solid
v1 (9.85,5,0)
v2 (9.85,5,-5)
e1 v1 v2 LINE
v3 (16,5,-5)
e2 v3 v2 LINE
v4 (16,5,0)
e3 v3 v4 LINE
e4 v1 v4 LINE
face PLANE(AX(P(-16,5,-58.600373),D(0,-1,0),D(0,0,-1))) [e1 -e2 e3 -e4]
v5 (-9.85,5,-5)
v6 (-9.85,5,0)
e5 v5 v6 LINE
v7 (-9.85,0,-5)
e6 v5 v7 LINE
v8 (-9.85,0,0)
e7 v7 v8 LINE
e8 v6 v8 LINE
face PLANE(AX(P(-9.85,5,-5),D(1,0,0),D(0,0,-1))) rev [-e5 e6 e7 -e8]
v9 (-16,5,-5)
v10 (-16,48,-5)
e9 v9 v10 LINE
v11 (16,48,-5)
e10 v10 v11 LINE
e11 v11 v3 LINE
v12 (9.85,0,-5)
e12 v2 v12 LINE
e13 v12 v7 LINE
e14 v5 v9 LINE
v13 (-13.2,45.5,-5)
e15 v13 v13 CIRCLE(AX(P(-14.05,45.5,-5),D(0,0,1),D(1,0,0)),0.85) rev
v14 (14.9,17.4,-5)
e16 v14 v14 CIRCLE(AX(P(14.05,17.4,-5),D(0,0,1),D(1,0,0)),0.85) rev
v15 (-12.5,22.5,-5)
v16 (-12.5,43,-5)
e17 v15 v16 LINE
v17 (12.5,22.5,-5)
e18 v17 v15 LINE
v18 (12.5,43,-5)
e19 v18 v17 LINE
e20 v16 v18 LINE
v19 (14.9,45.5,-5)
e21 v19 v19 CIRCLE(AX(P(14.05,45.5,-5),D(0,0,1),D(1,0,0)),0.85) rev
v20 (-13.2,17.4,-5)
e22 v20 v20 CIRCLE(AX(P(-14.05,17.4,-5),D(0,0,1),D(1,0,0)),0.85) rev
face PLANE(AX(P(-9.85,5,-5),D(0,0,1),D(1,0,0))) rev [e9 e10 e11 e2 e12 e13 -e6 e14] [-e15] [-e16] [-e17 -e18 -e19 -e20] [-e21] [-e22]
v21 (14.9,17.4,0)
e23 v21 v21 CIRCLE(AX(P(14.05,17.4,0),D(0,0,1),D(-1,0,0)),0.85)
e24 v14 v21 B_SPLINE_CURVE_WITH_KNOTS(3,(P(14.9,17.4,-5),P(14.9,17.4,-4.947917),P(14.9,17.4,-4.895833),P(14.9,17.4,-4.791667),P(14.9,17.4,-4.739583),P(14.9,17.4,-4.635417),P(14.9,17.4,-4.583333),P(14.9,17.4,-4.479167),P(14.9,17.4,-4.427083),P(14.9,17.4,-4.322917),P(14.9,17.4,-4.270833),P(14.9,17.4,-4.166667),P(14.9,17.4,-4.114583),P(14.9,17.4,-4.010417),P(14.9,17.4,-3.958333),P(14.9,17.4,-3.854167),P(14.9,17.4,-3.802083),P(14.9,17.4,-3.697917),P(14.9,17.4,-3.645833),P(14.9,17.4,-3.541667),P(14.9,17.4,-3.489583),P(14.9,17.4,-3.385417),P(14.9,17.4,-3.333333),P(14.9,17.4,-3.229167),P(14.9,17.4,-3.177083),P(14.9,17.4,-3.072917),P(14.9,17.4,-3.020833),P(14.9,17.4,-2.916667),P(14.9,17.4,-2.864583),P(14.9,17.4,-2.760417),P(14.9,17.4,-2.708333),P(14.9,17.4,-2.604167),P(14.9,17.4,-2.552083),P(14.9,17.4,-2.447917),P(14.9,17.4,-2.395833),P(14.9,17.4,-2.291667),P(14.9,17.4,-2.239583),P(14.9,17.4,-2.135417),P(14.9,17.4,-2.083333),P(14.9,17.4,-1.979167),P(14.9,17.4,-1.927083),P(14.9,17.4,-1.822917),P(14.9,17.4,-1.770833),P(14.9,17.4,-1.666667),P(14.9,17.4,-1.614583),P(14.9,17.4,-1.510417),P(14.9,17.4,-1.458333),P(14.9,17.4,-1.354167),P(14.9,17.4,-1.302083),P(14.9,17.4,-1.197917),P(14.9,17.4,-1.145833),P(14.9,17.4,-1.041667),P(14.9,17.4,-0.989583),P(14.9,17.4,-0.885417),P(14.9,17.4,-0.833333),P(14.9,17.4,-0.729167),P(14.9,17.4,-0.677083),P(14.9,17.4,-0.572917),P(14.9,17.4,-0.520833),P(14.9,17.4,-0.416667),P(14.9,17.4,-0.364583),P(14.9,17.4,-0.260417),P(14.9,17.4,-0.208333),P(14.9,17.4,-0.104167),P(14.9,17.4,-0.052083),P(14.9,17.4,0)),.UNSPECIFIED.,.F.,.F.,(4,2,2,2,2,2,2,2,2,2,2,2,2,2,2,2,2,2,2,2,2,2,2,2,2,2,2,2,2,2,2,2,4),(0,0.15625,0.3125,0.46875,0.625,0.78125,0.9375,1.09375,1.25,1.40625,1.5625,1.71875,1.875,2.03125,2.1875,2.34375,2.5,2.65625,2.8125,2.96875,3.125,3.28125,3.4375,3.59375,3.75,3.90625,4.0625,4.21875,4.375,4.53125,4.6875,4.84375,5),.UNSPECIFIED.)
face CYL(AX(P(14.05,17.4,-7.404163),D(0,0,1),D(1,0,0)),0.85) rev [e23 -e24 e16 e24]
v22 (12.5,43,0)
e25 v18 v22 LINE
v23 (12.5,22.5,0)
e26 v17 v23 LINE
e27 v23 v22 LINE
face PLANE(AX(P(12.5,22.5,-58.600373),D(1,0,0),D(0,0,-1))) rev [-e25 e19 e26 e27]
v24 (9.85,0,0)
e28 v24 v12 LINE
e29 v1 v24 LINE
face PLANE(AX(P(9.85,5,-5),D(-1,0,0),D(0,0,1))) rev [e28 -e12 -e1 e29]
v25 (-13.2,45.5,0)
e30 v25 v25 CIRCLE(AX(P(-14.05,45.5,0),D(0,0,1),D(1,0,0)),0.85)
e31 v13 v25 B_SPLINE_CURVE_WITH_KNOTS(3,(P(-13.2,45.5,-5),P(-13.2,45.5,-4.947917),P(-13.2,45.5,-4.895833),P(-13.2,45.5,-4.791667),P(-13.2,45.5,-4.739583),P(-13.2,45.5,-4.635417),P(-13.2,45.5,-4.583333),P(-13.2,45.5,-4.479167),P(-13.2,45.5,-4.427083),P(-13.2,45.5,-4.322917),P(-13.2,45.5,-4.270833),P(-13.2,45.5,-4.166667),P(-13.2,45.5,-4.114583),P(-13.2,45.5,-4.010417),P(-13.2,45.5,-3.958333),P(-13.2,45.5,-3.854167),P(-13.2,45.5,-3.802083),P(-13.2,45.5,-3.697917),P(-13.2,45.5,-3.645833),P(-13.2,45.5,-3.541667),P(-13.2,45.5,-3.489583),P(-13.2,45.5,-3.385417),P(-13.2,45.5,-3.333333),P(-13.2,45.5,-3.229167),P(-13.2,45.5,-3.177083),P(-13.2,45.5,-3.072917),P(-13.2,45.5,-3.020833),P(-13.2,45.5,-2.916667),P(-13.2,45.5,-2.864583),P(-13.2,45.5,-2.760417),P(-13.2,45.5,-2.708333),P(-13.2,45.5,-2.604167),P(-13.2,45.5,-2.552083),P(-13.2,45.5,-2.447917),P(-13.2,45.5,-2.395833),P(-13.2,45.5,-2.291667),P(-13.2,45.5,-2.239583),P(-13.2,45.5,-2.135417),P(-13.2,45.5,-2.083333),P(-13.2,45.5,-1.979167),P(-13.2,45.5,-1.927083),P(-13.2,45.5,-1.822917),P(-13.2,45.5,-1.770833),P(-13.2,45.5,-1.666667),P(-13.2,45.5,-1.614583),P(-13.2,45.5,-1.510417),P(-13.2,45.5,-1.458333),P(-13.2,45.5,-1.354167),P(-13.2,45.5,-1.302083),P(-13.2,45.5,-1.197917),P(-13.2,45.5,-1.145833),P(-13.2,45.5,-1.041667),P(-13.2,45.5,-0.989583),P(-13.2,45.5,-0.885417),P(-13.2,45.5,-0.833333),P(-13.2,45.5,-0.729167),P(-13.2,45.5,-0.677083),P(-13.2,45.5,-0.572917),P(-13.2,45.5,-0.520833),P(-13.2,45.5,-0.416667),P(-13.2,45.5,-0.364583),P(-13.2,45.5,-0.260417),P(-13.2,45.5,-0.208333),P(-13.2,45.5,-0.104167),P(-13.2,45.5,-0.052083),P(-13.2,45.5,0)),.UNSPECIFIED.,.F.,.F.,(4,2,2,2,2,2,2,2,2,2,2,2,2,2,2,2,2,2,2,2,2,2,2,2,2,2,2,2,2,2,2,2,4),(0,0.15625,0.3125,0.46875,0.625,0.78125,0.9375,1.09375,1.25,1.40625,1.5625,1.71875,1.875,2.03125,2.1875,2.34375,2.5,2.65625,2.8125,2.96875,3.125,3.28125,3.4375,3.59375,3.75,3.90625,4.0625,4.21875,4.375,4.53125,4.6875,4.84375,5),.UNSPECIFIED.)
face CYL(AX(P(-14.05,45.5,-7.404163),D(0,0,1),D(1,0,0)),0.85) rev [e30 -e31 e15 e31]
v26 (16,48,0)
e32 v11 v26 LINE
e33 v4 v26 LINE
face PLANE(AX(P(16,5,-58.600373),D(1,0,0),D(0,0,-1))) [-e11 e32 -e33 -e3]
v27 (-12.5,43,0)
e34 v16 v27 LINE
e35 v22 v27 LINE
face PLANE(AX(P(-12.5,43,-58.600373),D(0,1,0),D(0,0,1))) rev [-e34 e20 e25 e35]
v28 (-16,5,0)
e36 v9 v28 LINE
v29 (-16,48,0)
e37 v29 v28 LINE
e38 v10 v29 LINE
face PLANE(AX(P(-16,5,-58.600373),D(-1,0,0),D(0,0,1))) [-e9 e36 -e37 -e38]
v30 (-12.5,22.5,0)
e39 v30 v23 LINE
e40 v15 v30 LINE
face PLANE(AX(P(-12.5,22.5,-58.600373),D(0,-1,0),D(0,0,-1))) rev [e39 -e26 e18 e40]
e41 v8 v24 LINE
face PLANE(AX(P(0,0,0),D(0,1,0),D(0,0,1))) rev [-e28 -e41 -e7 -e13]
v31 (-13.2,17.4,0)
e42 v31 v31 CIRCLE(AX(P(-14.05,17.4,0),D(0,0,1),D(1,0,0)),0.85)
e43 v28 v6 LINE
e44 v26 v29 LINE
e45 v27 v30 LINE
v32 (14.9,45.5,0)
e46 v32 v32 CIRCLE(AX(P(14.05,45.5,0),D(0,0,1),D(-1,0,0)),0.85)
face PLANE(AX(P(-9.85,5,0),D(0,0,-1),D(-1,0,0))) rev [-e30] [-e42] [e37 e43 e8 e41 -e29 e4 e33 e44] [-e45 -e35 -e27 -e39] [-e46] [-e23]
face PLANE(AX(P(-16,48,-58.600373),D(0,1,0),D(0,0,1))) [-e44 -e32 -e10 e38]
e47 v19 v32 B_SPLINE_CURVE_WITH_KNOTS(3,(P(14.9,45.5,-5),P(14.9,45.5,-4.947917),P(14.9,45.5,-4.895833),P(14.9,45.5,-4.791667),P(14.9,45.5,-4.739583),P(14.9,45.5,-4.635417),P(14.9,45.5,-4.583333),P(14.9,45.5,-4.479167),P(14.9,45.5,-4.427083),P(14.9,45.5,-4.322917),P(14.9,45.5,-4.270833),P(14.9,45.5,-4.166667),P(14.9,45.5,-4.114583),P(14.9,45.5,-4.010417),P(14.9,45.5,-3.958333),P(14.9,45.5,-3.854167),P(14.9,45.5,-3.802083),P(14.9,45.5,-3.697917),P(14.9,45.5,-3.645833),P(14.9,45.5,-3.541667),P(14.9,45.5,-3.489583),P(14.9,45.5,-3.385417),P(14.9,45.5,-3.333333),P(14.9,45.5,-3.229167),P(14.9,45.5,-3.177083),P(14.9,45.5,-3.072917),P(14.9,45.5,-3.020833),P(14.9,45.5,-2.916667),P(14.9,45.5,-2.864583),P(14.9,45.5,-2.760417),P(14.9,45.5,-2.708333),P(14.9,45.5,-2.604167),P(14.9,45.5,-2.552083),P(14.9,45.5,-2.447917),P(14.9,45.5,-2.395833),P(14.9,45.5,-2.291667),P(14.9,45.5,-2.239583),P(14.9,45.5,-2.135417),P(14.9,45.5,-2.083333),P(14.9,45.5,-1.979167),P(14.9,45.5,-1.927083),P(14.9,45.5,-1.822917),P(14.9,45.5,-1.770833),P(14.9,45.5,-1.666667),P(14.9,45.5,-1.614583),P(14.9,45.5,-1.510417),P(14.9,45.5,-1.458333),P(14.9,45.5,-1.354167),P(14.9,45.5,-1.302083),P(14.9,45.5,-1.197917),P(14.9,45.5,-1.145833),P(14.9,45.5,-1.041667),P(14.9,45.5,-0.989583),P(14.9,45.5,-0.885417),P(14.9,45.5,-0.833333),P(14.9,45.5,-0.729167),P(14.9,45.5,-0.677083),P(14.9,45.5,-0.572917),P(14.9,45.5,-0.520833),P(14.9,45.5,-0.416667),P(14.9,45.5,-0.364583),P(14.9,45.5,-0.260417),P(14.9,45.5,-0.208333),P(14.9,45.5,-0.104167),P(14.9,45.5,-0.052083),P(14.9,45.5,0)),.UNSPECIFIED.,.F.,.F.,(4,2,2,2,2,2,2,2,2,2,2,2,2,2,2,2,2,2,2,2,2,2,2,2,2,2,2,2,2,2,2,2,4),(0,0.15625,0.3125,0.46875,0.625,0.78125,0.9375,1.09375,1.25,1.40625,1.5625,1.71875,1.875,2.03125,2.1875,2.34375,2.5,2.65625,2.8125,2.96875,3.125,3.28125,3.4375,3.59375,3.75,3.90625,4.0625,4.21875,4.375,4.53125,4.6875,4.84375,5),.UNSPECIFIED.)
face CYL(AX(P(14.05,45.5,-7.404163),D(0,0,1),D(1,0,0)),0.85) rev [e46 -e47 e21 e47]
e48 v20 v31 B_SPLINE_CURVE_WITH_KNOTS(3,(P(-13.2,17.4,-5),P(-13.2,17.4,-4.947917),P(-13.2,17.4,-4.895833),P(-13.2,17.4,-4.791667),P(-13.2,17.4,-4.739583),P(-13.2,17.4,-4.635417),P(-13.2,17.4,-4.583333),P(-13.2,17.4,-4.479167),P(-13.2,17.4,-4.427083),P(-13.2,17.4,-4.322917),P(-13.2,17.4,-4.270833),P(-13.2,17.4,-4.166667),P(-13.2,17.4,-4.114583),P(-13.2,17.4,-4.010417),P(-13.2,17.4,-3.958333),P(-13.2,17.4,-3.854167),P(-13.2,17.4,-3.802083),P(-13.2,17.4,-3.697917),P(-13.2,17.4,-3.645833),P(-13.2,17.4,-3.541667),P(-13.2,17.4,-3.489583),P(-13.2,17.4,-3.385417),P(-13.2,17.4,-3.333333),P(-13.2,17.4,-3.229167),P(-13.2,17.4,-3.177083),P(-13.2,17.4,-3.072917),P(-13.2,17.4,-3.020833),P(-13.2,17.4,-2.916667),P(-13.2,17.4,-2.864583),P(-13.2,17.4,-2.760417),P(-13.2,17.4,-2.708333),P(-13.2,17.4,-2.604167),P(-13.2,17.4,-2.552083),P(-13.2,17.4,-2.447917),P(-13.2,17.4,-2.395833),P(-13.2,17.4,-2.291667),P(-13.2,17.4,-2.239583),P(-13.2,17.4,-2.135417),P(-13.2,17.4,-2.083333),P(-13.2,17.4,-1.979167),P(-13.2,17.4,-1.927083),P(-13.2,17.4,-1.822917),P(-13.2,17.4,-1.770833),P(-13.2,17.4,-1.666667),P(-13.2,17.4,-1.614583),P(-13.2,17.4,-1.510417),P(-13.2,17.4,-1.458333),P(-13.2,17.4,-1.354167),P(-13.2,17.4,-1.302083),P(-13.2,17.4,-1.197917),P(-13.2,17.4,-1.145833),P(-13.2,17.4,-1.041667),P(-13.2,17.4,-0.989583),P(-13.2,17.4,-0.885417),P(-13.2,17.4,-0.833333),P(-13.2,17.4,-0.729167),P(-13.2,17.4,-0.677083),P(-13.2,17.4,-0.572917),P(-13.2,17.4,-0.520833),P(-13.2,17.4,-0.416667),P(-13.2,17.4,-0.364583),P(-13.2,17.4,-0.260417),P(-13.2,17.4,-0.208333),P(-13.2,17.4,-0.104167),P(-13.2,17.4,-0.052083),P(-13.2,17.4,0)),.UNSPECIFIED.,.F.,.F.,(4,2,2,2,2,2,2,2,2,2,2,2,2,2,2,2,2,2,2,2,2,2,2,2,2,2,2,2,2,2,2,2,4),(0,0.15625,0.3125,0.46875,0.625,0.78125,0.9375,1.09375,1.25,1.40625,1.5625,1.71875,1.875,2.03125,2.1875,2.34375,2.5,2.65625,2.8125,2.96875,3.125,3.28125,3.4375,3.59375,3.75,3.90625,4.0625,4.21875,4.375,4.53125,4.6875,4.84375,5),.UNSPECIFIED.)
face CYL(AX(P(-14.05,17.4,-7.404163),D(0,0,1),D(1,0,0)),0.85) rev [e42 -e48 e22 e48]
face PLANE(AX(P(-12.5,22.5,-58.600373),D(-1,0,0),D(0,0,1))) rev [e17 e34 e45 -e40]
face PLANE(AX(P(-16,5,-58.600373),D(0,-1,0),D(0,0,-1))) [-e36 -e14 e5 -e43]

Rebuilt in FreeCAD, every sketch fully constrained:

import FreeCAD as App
import Part
import Sketcher

V = App.Vector
Q = App.Units.Quantity


def add_polygon(sketch, points):
    """Adds a closed chain of lines whose ends are joined by coincident constraints."""
    first, n = sketch.GeometryCount, len(points)
    for a, b in zip(points, points[1:] + points[:1]):
        sketch.addGeometry(Part.LineSegment(App.Vector(*a, 0), App.Vector(*b, 0)), False)
    for i in range(n):
        sketch.addConstraint(Sketcher.Constraint("Coincident", first + i, 2, first + (i + 1) % n, 1))

doc = App.newDocument("Part")
body = doc.addObject("PartDesign::Body", "Body")

# Sketch on XZ plane
sketch1 = body.newObject("Sketcher::SketchObject", "Sketch")
sketch1.AttachmentSupport = (doc.getObject("XZ_Plane"), [""])
sketch1.MapMode = "FlatFace"
add_polygon(sketch1, [(-10, -5), (-10, 0), (10, 0), (10, -5)])  # lines 0-3
sketch1.addConstraint([
    Sketcher.Constraint("Vertical", 0),
    Sketcher.Constraint("Horizontal", 1),
    Sketcher.Constraint("Vertical", 2),
    Sketcher.Constraint("Horizontal", 3),
    Sketcher.Constraint("Symmetric", 0, 2, 1, 2, -1, 1),
    Sketcher.Constraint("DistanceY", 0, 1, 0, 2, Q("5 mm")),
    Sketcher.Constraint("DistanceX", 1, 1, 1, 2, Q("19.7 mm")),
])
pad1 = body.newObject("PartDesign::Pad", "Pad")
pad1.Profile = sketch1
pad1.Length = 5
pad1.Reversed = True

# Sketch on XY plane
sketch2 = body.newObject("Sketcher::SketchObject", "Sketch001")
sketch2.AttachmentSupport = (doc.getObject("XY_Plane"), [""])
sketch2.MapMode = "FlatFace"
add_polygon(sketch2, [(-16, 5), (16, 5), (16, 48), (-16, 48)])  # lines 0-3
add_polygon(sketch2, [(12, 22), (-12, 22), (-12, 43), (12, 43)])  # lines 4-7
sketch2.addConstraint([
    Sketcher.Constraint("Horizontal", 0),
    Sketcher.Constraint("Vertical", 1),
    Sketcher.Constraint("Horizontal", 2),
    Sketcher.Constraint("Vertical", 3),
    Sketcher.Constraint("Horizontal", 4),
    Sketcher.Constraint("Vertical", 5),
    Sketcher.Constraint("Horizontal", 6),
    Sketcher.Constraint("Vertical", 7),
    Sketcher.Constraint("DistanceX", 0, 1, 0, 2, Q("32 mm")),
    Sketcher.Constraint("DistanceX", 4, 2, 4, 1, Q("25 mm")),
    Sketcher.Constraint("DistanceY", 1, 1, 1, 2, Q("43 mm")),
    Sketcher.Constraint("DistanceY", 5, 1, 5, 2, Q("20.5 mm")),
    Sketcher.Constraint("DistanceX", -1, 1, 0, 2, Q("16 mm")),
    Sketcher.Constraint("DistanceY", -1, 1, 0, 2, Q("5 mm")),
    Sketcher.Constraint("DistanceY", -1, 1, 5, 2, Q("43 mm")),
    Sketcher.Constraint("DistanceX", 4, 2, -1, 1, Q("12.5 mm")),
])
pad2 = body.newObject("PartDesign::Pad", "Pad001")
pad2.Profile = sketch2
pad2.Length = 5
pad2.Reversed = True

# Sketch on XY plane
sketch3 = body.newObject("Sketcher::SketchObject", "Sketch002")
sketch3.AttachmentSupport = (doc.getObject("XY_Plane"), [""])
sketch3.MapMode = "FlatFace"
sketch3.addGeometry([
    Part.Circle(V(-14.1, 45.5, 0), V(0, 0, 1), 0.8),
    Part.Circle(V(-14.1, 17.4, 0), V(0, 0, 1), 0.8),
    Part.Circle(V(14.1, 17.4, 0), V(0, 0, 1), 0.8),
    Part.Circle(V(14.1, 45.5, 0), V(0, 0, 1), 0.8),
], False)
sketch3.addConstraint([
    Sketcher.Constraint("Equal", 0, 1),
    Sketcher.Constraint("Equal", 1, 2),
    Sketcher.Constraint("Equal", 2, 3),
    Sketcher.Constraint("Symmetric", 1, 3, 2, 3, -2),
    Sketcher.Constraint("Symmetric", 0, 3, 3, 3, -2),
    Sketcher.Constraint("Vertical", 0, 3, 1, 3),
    Sketcher.Constraint("Diameter", 0, Q("1.7 mm")),
    Sketcher.Constraint("DistanceY", -1, 1, 0, 3, Q("45.5 mm")),
    Sketcher.Constraint("DistanceY", -1, 1, 1, 3, Q("17.4 mm")),
    Sketcher.Constraint("DistanceX", 1, 3, 2, 3, Q("28.1 mm")),
])
pocket1 = body.newObject("PartDesign::Pocket", "Pocket")
pocket1.Profile = sketch3
pocket1.Length = 5

doc.recompute()
